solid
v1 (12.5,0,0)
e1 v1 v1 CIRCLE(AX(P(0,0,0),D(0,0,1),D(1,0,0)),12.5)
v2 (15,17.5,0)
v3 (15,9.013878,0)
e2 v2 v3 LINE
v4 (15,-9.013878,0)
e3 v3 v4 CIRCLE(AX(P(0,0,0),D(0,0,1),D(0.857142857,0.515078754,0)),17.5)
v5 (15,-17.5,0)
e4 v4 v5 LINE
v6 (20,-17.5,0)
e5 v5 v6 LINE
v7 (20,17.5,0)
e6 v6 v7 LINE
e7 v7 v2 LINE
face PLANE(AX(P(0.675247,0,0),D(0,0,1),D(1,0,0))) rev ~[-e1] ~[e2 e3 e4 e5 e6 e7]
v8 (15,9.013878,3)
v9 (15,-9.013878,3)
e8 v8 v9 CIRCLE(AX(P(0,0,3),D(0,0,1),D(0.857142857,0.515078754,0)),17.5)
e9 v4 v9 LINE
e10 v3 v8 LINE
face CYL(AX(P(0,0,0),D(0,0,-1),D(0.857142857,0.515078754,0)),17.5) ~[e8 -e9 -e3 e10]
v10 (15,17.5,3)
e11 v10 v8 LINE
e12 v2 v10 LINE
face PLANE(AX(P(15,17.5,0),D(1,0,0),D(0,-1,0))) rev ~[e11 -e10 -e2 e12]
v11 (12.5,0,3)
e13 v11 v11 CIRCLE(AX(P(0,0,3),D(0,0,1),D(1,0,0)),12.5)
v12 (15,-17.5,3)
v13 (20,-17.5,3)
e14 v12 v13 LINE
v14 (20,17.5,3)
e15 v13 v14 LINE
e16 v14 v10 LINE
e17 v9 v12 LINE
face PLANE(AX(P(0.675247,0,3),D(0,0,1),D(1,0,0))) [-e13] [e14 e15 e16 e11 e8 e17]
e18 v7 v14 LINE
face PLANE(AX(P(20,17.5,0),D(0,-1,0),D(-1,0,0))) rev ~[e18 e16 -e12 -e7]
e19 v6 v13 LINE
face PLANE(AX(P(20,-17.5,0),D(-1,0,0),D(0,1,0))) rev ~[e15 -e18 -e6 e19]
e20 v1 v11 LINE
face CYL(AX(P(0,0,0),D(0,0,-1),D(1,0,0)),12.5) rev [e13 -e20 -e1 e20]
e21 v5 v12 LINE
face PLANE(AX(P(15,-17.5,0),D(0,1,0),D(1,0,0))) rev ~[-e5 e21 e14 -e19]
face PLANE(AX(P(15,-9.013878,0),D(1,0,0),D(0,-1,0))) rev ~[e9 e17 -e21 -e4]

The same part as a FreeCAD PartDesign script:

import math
import FreeCAD as App
import Part
import Sketcher
Q = App.Units.Quantity

doc = App.newDocument("Part")
body = doc.addObject("PartDesign::Body", "Body")

# Sketch on XY plane
sketch1 = body.newObject("Sketcher::SketchObject", "Sketch")
sketch1.AttachmentSupport = (doc.getObject("XY_Plane"), [""])
sketch1.MapMode = "FlatFace"
sketch1.addGeometry([
    Part.ArcOfCircle(Part.Circle(App.Vector(0, 0, 0), App.Vector(0, 0, 1), 18), math.radians(31), math.radians(329)),  # 0
    Part.LineSegment(App.Vector(15, -9, 0), App.Vector(15, -18, 0)),  # 1
    Part.LineSegment(App.Vector(15, -18, 0), App.Vector(20, -18, 0)),  # 2
    Part.LineSegment(App.Vector(20, -18, 0), App.Vector(20, 18, 0)),  # 3
    Part.LineSegment(App.Vector(20, 18, 0), App.Vector(15, 18, 0)),  # 4
    Part.LineSegment(App.Vector(15, 18, 0), App.Vector(15, 9, 0)),  # 5
    Part.Circle(App.Vector(0, 0, 0), App.Vector(0, 0, 1), 12),  # 6
], False)
sketch1.addConstraint([
    Sketcher.Constraint("Coincident", 0, 2, 1, 1),
    Sketcher.Constraint("Coincident", 1, 2, 2, 1),
    Sketcher.Constraint("Coincident", 2, 2, 3, 1),
    Sketcher.Constraint("Coincident", 3, 2, 4, 1),
    Sketcher.Constraint("Coincident", 4, 2, 5, 1),
    Sketcher.Constraint("Coincident", 5, 2, 0, 1),
    Sketcher.Constraint("Vertical", 1),
    Sketcher.Constraint("Horizontal", 2),
    Sketcher.Constraint("Vertical", 3),
    Sketcher.Constraint("Horizontal", 4),
    Sketcher.Constraint("Vertical", 5),
    Sketcher.Constraint("Coincident", 0, 3, -1, 1),
    Sketcher.Constraint("Coincident", 6, 3, -1, 1),
    Sketcher.Constraint("Symmetric", 1, 2, 4, 2, -1),
    Sketcher.Constraint("Diameter", 6, Q("25 mm")),
    Sketcher.Constraint("Radius", 0, Q("17.5 mm")),
    Sketcher.Constraint("DistanceX", 2, 1, 2, 2, Q("5 mm")),
    Sketcher.Constraint("DistanceY", 3, 1, 3, 2, Q("35 mm")),
    Sketcher.Constraint("DistanceX", -1, 1, 0, 2, Q("15 mm")),
])
pad1 = body.newObject("PartDesign::Pad", "Pad")
pad1.Profile = sketch1
pad1.Length = 3

doc.recompute()
